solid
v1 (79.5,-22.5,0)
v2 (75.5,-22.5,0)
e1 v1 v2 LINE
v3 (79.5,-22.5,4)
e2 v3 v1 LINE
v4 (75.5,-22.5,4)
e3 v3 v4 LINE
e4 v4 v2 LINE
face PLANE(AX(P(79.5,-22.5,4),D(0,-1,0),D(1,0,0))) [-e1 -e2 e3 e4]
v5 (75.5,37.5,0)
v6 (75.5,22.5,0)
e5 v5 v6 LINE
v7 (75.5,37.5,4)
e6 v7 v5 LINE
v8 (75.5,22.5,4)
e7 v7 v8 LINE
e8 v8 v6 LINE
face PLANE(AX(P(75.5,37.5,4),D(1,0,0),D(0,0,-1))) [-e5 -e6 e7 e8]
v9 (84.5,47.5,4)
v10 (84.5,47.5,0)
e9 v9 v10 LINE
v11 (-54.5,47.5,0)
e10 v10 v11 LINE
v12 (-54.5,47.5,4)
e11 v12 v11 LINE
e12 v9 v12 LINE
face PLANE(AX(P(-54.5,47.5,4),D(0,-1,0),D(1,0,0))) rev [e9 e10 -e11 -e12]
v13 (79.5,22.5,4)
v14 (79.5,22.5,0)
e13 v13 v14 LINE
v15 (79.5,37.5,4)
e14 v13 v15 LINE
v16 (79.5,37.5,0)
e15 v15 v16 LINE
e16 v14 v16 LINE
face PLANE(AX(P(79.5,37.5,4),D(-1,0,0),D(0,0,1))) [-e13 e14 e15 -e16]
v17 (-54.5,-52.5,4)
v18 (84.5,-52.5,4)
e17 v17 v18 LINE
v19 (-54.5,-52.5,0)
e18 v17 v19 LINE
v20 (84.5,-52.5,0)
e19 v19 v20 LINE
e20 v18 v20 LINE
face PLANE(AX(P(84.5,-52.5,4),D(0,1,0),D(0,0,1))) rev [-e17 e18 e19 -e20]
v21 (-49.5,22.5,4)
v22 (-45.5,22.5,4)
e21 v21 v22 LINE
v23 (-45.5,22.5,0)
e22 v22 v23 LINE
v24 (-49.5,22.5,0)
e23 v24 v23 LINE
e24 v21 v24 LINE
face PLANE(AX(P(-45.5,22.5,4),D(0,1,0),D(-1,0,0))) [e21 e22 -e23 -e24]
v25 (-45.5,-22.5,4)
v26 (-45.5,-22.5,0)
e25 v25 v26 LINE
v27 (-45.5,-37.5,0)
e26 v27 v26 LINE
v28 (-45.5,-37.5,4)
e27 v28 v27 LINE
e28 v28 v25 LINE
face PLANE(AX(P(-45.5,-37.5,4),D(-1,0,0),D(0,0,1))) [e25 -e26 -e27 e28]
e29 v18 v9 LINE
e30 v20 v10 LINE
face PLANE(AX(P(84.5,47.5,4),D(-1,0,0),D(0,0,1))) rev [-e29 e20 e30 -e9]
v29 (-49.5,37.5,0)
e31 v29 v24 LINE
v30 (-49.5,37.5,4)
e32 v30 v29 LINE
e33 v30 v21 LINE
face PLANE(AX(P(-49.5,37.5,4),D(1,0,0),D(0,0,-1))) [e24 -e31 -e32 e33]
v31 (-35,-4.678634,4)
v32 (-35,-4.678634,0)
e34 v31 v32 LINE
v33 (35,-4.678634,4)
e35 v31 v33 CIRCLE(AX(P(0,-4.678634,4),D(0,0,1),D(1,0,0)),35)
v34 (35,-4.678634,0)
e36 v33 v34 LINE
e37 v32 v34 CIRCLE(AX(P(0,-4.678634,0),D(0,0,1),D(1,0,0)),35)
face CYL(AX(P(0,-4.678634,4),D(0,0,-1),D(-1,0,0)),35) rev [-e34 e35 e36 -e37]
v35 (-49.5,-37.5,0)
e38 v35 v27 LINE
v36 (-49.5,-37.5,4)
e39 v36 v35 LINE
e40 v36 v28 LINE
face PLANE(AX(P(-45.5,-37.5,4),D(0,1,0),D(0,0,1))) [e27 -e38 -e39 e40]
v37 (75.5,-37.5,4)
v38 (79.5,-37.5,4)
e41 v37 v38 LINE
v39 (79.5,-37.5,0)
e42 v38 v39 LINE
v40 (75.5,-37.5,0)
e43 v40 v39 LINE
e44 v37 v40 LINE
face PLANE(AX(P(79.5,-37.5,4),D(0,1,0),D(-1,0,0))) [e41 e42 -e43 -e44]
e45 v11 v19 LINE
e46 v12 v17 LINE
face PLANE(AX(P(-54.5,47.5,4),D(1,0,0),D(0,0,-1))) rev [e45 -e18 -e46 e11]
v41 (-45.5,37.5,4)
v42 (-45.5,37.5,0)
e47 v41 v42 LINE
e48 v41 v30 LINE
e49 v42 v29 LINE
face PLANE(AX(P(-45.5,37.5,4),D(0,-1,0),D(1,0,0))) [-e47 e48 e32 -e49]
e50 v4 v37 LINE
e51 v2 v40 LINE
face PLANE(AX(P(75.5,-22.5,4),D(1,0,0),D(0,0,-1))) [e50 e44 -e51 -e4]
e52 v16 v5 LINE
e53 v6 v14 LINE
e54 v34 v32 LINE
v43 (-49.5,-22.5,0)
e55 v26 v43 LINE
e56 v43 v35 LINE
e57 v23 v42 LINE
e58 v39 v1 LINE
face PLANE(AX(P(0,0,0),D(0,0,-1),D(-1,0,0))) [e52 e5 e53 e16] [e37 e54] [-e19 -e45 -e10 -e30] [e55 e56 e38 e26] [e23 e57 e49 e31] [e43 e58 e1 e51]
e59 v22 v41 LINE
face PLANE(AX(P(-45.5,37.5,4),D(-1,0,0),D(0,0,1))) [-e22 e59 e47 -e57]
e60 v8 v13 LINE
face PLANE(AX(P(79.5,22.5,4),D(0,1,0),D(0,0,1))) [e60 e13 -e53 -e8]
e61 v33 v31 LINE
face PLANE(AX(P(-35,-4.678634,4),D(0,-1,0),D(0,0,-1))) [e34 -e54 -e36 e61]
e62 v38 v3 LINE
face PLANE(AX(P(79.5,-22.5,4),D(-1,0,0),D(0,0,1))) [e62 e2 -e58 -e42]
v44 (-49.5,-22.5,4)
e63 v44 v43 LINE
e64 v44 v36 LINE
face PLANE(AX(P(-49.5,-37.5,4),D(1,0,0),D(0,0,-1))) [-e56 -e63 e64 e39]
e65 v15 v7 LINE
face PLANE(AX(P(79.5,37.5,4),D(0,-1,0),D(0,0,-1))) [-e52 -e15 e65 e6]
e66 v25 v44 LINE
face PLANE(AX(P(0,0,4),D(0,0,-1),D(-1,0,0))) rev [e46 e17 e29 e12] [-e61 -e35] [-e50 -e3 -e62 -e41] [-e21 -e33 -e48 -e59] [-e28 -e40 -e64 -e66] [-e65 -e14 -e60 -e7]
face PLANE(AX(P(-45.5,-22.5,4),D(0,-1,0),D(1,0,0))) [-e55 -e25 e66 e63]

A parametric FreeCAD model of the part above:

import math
import FreeCAD as App
import Part
import Sketcher
from FreeCAD import Vector

doc = App.newDocument("Part")
body = doc.addObject("PartDesign::Body", "Body")

# Sketch on XY plane
sketch1 = body.newObject("Sketcher::SketchObject", "Sketch")
sketch1.AttachmentSupport = (doc.getObject("XY_Plane"), [""])
sketch1.MapMode = "FlatFace"
sketch1.addGeometry([
    Part.LineSegment(Vector(-54.5, -52.5, 0), Vector(84.5, -52.5, 0)),  # 0
    Part.LineSegment(Vector(84.5, -52.5, 0), Vector(84.5, 47.5, 0)),  # 1
    Part.LineSegment(Vector(84.5, 47.5, 0), Vector(-54.5, 47.5, 0)),  # 2
    Part.LineSegment(Vector(-54.5, 47.5, 0), Vector(-54.5, -52.5, 0)),  # 3
    Part.LineSegment(Vector(-45.5, -37.5, 0), Vector(-49.5, -37.5, 0)),  # 4
    Part.LineSegment(Vector(-49.5, -37.5, 0), Vector(-49.5, -22.5, 0)),  # 5
    Part.LineSegment(Vector(-49.5, -22.5, 0), Vector(-45.5, -22.5, 0)),  # 6
    Part.LineSegment(Vector(-45.5, -22.5, 0), Vector(-45.5, -37.5, 0)),  # 7
    Part.ArcOfCircle(Part.Circle(Vector(0, -4.678634, 0), Vector(0, 0, 1), 35), math.radians(180), math.radians(360)),  # 8
    Part.LineSegment(Vector(-35, -4.678634, 0), Vector(35, -4.678634, 0)),  # 9
    Part.LineSegment(Vector(79.5, -37.5, 0), Vector(75.5, -37.5, 0)),  # 10
    Part.LineSegment(Vector(75.5, -37.5, 0), Vector(75.5, -22.5, 0)),  # 11
    Part.LineSegment(Vector(75.5, -22.5, 0), Vector(79.5, -22.5, 0)),  # 12
    Part.LineSegment(Vector(79.5, -22.5, 0), Vector(79.5, -37.5, 0)),  # 13
    Part.LineSegment(Vector(-45.5, 22.5, 0), Vector(-49.5, 22.5, 0)),  # 14
    Part.LineSegment(Vector(-49.5, 22.5, 0), Vector(-49.5, 37.5, 0)),  # 15
    Part.LineSegment(Vector(-49.5, 37.5, 0), Vector(-45.5, 37.5, 0)),  # 16
    Part.LineSegment(Vector(-45.5, 37.5, 0), Vector(-45.5, 22.5, 0)),  # 17
    Part.LineSegment(Vector(79.5, 22.5, 0), Vector(75.5, 22.5, 0)),  # 18
    Part.LineSegment(Vector(75.5, 22.5, 0), Vector(75.5, 37.5, 0)),  # 19
    Part.LineSegment(Vector(75.5, 37.5, 0), Vector(79.5, 37.5, 0)),  # 20
    Part.LineSegment(Vector(79.5, 37.5, 0), Vector(79.5, 22.5, 0)),  # 21
], False)
sketch1.addConstraint([
    Sketcher.Constraint("Coincident", 0, 2, 1, 1),
    Sketcher.Constraint("Coincident", 1, 2, 2, 1),
    Sketcher.Constraint("Coincident", 2, 2, 3, 1),
    Sketcher.Constraint("Coincident", 3, 2, 0, 1),
    Sketcher.Constraint("Coincident", 4, 2, 5, 1),
    Sketcher.Constraint("Coincident", 5, 2, 6, 1),
    Sketcher.Constraint("Coincident", 6, 2, 7, 1),
    Sketcher.Constraint("Coincident", 7, 2, 4, 1),
    Sketcher.Constraint("Coincident", 8, 1, 9, 1),
    Sketcher.Constraint("Coincident", 9, 2, 8, 2),
    Sketcher.Constraint("Coincident", 10, 2, 11, 1),
    Sketcher.Constraint("Coincident", 11, 2, 12, 1),
    Sketcher.Constraint("Coincident", 12, 2, 13, 1),
    Sketcher.Constraint("Coincident", 13, 2, 10, 1),
    Sketcher.Constraint("Coincident", 14, 2, 15, 1),
    Sketcher.Constraint("Coincident", 15, 2, 16, 1),
    Sketcher.Constraint("Coincident", 16, 2, 17, 1),
    Sketcher.Constraint("Coincident", 17, 2, 14, 1),
    Sketcher.Constraint("Coincident", 18, 2, 19, 1),
    Sketcher.Constraint("Coincident", 19, 2, 20, 1),
    Sketcher.Constraint("Coincident", 20, 2, 21, 1),
    Sketcher.Constraint("Coincident", 21, 2, 18, 1),
    Sketcher.Constraint("Horizontal", 0),
    Sketcher.Constraint("Vertical", 1),
    Sketcher.Constraint("Horizontal", 2),
    Sketcher.Constraint("Vertical", 3),
    Sketcher.Constraint("Horizontal", 4),
    Sketcher.Constraint("Vertical", 5),
    Sketcher.Constraint("Horizontal", 6),
    Sketcher.Constraint("Vertical", 7),
    Sketcher.Constraint("Horizontal", 9),
    Sketcher.Constraint("Horizontal", 10),
    Sketcher.Constraint("Vertical", 11),
    Sketcher.Constraint("Horizontal", 12),
    Sketcher.Constraint("Vertical", 13),
    Sketcher.Constraint("Horizontal", 14),
    Sketcher.Constraint("Vertical", 15),
    Sketcher.Constraint("Horizontal", 16),
    Sketcher.Constraint("Vertical", 17),
    Sketcher.Constraint("Horizontal", 18),
    Sketcher.Constraint("Vertical", 19),
    Sketcher.Constraint("Horizontal", 20),
    Sketcher.Constraint("Vertical", 21),
    Sketcher.Constraint("Symmetric", 5, 2, 14, 2, -1),
    Sketcher.Constraint("Symmetric", 7, 2, 16, 2, -1),
    Sketcher.Constraint("Symmetric", 11, 2, 18, 2, -1),
    Sketcher.Constraint("Symmetric", 13, 2, 20, 2, -1),
    Sketcher.Constraint("PointOnObject", 8, 3, -2),
    Sketcher.Constraint("Horizontal", 7, 2, 10, 2),
    Sketcher.Constraint("Horizontal", 6, 2, 11, 2),
    Sketcher.Constraint("Equal", 6, 10),
    Sketcher.Constraint("Radius", 8, 35.0),
    Sketcher.Constraint("DistanceX", 0, 1, 0, 2, 139.0),
    Sketcher.Constraint("DistanceX", 4, 2, 4, 1, 4.0),
    Sketcher.Constraint("DistanceY", 1, 1, 1, 2, 100.0),
    Sketcher.Constraint("DistanceY", 5, 1, 5, 2, 15.0),
    Sketcher.Constraint("DistanceX", 3, 2, 4, 2, 5.0),
    Sketcher.Constraint("DistanceY", 3, 2, 4, 2, 15.0),
    Sketcher.Constraint("DistanceX", 10, 2, 0, 2, 9.0),
    Sketcher.Constraint("DistanceY", 14, 2, 2, 2, 25.0),
    Sketcher.Constraint("DistanceX", -1, 1, 0, 2, 84.5),
    Sketcher.Constraint("DistanceY", 8, 3, -1, 1, 4.678634),
    Sketcher.Constraint("DistanceY", 8, 1, -1, 1, 4.678634),
])
pad1 = body.newObject("PartDesign::Pad", "Pad")
pad1.Profile = sketch1
pad1.Length = 4

doc.recompute()
